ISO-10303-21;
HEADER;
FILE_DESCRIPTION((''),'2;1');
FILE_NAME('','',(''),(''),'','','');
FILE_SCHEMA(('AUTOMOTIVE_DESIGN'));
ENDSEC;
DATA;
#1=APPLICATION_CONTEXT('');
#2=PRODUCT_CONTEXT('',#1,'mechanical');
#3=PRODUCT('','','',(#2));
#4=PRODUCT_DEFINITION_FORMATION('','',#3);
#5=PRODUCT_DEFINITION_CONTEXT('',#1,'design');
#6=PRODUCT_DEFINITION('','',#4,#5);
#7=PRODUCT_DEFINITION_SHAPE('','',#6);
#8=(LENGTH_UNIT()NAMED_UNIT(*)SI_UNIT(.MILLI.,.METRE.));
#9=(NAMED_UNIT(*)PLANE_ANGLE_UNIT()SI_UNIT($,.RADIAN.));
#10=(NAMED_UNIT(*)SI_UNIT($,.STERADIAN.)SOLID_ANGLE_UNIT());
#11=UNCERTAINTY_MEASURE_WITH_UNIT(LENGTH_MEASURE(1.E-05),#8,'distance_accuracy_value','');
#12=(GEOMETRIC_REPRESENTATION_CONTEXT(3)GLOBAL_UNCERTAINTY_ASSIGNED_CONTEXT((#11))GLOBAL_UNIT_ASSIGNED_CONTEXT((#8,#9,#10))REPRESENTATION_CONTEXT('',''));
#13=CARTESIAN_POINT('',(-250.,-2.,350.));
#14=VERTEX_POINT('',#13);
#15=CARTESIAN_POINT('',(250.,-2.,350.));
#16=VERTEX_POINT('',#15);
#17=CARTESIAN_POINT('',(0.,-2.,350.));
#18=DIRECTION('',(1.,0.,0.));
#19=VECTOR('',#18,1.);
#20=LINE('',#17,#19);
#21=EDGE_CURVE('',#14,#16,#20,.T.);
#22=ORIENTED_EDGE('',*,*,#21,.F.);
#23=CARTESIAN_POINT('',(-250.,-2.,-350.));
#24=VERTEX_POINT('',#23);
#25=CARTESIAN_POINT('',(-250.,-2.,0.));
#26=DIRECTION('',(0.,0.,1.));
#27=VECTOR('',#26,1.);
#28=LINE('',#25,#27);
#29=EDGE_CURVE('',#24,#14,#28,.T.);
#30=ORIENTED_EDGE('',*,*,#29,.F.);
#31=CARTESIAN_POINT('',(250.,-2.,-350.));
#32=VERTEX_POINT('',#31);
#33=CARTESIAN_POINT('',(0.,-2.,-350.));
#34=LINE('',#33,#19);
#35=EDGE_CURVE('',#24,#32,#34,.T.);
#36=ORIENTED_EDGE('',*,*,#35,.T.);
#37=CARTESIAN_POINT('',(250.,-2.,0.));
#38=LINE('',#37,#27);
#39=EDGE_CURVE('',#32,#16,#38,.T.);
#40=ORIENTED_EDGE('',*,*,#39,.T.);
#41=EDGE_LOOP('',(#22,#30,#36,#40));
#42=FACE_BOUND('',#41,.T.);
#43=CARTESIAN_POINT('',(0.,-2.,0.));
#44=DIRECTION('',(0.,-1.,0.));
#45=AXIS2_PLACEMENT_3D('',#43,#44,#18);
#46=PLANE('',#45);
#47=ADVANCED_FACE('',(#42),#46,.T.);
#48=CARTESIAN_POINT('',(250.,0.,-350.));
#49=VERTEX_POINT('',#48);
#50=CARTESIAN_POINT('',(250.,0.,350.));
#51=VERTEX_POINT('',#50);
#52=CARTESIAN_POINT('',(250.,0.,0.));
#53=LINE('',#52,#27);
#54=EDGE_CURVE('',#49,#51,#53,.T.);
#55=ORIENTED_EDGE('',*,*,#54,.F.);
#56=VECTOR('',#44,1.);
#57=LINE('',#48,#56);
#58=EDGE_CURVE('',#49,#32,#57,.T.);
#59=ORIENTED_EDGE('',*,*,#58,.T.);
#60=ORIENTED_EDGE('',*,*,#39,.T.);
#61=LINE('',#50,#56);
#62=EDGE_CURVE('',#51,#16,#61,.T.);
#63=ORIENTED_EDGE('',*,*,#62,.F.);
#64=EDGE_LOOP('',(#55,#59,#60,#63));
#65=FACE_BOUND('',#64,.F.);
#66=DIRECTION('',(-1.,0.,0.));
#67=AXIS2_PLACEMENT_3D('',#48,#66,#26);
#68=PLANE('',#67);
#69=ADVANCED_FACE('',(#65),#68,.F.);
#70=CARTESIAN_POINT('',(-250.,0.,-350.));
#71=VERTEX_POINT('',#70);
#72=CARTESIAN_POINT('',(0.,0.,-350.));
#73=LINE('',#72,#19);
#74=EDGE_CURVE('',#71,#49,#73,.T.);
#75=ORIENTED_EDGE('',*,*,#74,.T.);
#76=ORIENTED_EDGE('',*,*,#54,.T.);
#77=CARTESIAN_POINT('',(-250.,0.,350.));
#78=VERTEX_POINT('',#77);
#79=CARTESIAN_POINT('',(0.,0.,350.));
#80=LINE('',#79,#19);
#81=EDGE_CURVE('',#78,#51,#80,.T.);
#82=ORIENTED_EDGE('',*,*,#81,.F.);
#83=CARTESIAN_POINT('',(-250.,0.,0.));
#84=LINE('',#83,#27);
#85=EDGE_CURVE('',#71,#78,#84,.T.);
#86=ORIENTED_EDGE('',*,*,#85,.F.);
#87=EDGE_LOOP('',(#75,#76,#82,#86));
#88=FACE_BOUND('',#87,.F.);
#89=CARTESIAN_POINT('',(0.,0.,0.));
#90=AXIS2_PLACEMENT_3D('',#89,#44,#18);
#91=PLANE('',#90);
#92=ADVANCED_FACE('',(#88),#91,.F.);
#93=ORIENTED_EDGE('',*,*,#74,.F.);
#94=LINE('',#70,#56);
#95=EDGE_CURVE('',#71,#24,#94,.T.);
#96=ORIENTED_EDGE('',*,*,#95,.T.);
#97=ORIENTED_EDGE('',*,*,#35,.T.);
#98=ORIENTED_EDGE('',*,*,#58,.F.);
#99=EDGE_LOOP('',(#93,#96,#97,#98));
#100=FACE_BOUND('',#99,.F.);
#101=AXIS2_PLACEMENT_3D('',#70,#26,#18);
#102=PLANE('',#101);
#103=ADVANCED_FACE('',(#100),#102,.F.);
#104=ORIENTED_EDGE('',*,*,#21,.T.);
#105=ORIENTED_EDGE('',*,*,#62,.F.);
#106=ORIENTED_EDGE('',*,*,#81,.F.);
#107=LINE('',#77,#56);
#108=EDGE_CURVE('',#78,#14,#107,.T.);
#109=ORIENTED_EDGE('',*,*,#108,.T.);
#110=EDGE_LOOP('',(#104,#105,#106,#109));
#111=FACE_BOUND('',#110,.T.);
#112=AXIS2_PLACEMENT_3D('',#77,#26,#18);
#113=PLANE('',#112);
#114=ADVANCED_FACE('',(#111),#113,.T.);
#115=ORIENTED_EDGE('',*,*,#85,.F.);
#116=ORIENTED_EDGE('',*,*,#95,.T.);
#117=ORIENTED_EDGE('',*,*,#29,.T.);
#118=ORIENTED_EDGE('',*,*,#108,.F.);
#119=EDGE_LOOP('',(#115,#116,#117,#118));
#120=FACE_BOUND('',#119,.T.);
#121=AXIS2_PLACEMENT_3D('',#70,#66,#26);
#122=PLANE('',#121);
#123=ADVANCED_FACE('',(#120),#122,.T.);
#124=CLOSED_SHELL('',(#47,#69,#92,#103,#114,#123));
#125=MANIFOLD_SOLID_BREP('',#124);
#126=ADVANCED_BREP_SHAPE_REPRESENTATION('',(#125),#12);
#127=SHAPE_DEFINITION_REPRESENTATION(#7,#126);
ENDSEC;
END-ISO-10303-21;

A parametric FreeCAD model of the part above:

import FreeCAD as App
import Part
import Sketcher
from FreeCAD import Vector

doc = App.newDocument("Part")
params = doc.addObject("Spreadsheet::Sheet", "Params")
for row, (alias, value) in enumerate([
    ("sketch1_width", "500 mm"),
    ("sketch1_height", "700 mm"),
    ("pad1_length", "2 mm"),
], start=1):
    params.set(f"A{row}", alias)
    params.set(f"B{row}", "=" + value)
    params.setAlias(f"B{row}", alias)

body = doc.addObject("PartDesign::Body", "Body")

sketch1 = doc.addObject("Sketcher::SketchObject", "Sketch")
body.addObject(sketch1)
sketch1.AttachmentSupport = (doc.XZ_Plane, [""])
sketch1.MapMode = "FlatFace"
sketch1.addGeometry([
    Part.LineSegment(Vector(-250, 350, 0), Vector(-250, -350, 0)),
    Part.LineSegment(Vector(-250, -350, 0), Vector(250, -350, 0)),
    Part.LineSegment(Vector(250, -350, 0), Vector(250, 350, 0)),
    Part.LineSegment(Vector(250, 350, 0), Vector(-250, 350, 0)),
], False)
sketch1.addConstraint([
    Sketcher.Constraint("Coincident", 0, 2, 1, 1),
    Sketcher.Constraint("Coincident", 1, 2, 2, 1),
    Sketcher.Constraint("Coincident", 2, 2, 3, 1),
    Sketcher.Constraint("Coincident", 3, 2, 0, 1),
    Sketcher.Constraint("Vertical", 0),
    Sketcher.Constraint("Horizontal", 1),
    Sketcher.Constraint("Vertical", 2),
    Sketcher.Constraint("Horizontal", 3),
    Sketcher.Constraint("Symmetric", 0, 2, 2, 2, -1, 1),
    Sketcher.Constraint("DistanceX", 1, 1, 1, 2, 500.0),
    Sketcher.Constraint("DistanceY", 0, 2, 0, 1, 700.0),
])
sketch1.setExpression("Constraints[9]", "Params.sketch1_width")
sketch1.setExpression("Constraints[10]", "Params.sketch1_height")
pad1 = doc.addObject("PartDesign::Pad", "Pad")
body.addObject(pad1)
pad1.Profile = sketch1
pad1.setExpression("Length", "Params.pad1_length")

doc.recompute()
